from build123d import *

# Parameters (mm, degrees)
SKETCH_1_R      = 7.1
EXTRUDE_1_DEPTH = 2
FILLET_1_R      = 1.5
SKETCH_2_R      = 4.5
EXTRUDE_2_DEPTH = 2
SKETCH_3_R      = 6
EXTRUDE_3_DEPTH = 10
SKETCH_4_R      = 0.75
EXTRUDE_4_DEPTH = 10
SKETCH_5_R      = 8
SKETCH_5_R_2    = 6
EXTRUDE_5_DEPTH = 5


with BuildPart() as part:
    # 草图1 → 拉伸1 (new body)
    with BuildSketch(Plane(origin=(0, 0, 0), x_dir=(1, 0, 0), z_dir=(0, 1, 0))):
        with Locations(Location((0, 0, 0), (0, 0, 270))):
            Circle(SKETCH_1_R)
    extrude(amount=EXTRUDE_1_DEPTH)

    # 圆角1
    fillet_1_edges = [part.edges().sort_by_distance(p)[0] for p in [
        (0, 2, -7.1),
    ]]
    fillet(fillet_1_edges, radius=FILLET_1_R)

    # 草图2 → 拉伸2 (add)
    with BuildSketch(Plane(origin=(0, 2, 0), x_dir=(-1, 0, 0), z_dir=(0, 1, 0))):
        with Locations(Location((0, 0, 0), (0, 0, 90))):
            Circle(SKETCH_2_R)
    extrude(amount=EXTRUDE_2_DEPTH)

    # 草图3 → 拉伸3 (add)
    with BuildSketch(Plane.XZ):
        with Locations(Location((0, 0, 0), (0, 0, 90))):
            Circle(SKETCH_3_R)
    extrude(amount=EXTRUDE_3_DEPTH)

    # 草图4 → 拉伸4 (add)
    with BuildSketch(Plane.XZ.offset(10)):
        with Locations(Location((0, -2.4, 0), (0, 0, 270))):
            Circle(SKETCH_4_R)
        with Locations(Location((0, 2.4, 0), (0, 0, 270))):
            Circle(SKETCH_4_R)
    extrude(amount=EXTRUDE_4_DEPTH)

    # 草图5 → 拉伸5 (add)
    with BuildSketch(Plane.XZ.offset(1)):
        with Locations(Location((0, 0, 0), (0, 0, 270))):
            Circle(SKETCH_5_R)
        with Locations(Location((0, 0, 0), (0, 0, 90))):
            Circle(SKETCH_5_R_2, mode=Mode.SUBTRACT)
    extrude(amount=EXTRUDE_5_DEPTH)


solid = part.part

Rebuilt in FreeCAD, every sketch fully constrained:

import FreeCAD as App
import Part
import Sketcher

V = App.Vector


def edges_at(feature, points):
    """Names of the edges that pass closest to the given points."""
    edges = feature.Shape.Edges
    near = lambda p: min(range(len(edges)), key=lambda i: edges[i].distToShape(Part.Vertex(*p))[0])
    return sorted({f"Edge{near(p) + 1}" for p in points})

doc = App.newDocument("Part")
body = doc.addObject("PartDesign::Body", "Body")

sketch1 = body.newObject("Sketcher::SketchObject", "Sketch")
sketch1.AttachmentSupport = (doc.getObject("XZ_Plane"), [""])
sketch1.MapMode = "FlatFace"
sketch1.addGeometry(Part.Circle(V(0, 0, 0), V(0, 0, 1), 7), False)
sketch1.addConstraint([
    Sketcher.Constraint("Coincident", 0, 3, -1, 1),
    Sketcher.Constraint("Diameter", 0, 14.2),
])
pad1 = body.newObject("PartDesign::Pad", "Pad")
pad1.Profile = sketch1
pad1.Length = 2
pad1.Reversed = True
doc.recompute()

fillet = body.newObject("PartDesign::Fillet", "Fillet")
fillet.Base = (pad1, edges_at(pad1, [(0, 2, -7.1)]))
fillet.Radius = 1.5

sketch2 = body.newObject("Sketcher::SketchObject", "Sketch001")
sketch2.AttachmentSupport = (doc.getObject("XZ_Plane"), [""])
sketch2.MapMode = "FlatFace"
sketch2.AttachmentOffset = App.Placement(V(0, 0, -2), App.Rotation())
sketch2.addGeometry(Part.Circle(V(0, 0, 0), V(0, 0, 1), 4.5), False)
sketch2.addConstraint([
    Sketcher.Constraint("Coincident", 0, 3, -1, 1),
    Sketcher.Constraint("Diameter", 0, 9.0),
])
pad2 = body.newObject("PartDesign::Pad", "Pad001")
pad2.Profile = sketch2
pad2.Length = 2
pad2.Reversed = True

sketch3 = body.newObject("Sketcher::SketchObject", "Sketch002")
sketch3.AttachmentSupport = (doc.getObject("XZ_Plane"), [""])
sketch3.MapMode = "FlatFace"
sketch3.addGeometry(Part.Circle(V(0, 0, 0), V(0, 0, 1), 6), False)
sketch3.addConstraint([
    Sketcher.Constraint("Coincident", 0, 3, -1, 1),
    Sketcher.Constraint("Diameter", 0, 12.0),
])
pad3 = body.newObject("PartDesign::Pad", "Pad002")
pad3.Profile = sketch3
pad3.Length = 10

sketch4 = body.newObject("Sketcher::SketchObject", "Sketch003")
sketch4.AttachmentSupport = (doc.getObject("XZ_Plane"), [""])
sketch4.MapMode = "FlatFace"
sketch4.AttachmentOffset = App.Placement(V(0, 0, 10), App.Rotation())
sketch4.addGeometry([
    Part.Circle(V(0, -2.4, 0), V(0, 0, 1), 0.8),
    Part.Circle(V(0, 2.4, 0), V(0, 0, 1), 0.8),
], False)
sketch4.addConstraint([
    Sketcher.Constraint("Equal", 0, 1),
    Sketcher.Constraint("Symmetric", 0, 3, 1, 3, -1, 1),
    Sketcher.Constraint("PointOnObject", 0, 3, -2),
    Sketcher.Constraint("Diameter", 0, 1.5),
    Sketcher.Constraint("DistanceY", 0, 3, -1, 1, 2.4),
])
pad4 = body.newObject("PartDesign::Pad", "Pad003")
pad4.Profile = sketch4
pad4.Length = 10

sketch5 = body.newObject("Sketcher::SketchObject", "Sketch004")
sketch5.AttachmentSupport = (doc.getObject("XZ_Plane"), [""])
sketch5.MapMode = "FlatFace"
sketch5.AttachmentOffset = App.Placement(V(0, 0, 1), App.Rotation())
sketch5.addGeometry([
    Part.Circle(V(0, 0, 0), V(0, 0, 1), 8),
    Part.Circle(V(0, 0, 0), V(0, 0, 1), 6),
], False)
sketch5.addConstraint([
    Sketcher.Constraint("Coincident", 0, 3, -1, 1),
    Sketcher.Constraint("Coincident", 1, 3, -1, 1),
    Sketcher.Constraint("Diameter", 0, 16.0),
    Sketcher.Constraint("Diameter", 1, 12.0),
])
pad5 = body.newObject("PartDesign::Pad", "Pad004")
pad5.Profile = sketch5
pad5.Length = 5

doc.recompute()
